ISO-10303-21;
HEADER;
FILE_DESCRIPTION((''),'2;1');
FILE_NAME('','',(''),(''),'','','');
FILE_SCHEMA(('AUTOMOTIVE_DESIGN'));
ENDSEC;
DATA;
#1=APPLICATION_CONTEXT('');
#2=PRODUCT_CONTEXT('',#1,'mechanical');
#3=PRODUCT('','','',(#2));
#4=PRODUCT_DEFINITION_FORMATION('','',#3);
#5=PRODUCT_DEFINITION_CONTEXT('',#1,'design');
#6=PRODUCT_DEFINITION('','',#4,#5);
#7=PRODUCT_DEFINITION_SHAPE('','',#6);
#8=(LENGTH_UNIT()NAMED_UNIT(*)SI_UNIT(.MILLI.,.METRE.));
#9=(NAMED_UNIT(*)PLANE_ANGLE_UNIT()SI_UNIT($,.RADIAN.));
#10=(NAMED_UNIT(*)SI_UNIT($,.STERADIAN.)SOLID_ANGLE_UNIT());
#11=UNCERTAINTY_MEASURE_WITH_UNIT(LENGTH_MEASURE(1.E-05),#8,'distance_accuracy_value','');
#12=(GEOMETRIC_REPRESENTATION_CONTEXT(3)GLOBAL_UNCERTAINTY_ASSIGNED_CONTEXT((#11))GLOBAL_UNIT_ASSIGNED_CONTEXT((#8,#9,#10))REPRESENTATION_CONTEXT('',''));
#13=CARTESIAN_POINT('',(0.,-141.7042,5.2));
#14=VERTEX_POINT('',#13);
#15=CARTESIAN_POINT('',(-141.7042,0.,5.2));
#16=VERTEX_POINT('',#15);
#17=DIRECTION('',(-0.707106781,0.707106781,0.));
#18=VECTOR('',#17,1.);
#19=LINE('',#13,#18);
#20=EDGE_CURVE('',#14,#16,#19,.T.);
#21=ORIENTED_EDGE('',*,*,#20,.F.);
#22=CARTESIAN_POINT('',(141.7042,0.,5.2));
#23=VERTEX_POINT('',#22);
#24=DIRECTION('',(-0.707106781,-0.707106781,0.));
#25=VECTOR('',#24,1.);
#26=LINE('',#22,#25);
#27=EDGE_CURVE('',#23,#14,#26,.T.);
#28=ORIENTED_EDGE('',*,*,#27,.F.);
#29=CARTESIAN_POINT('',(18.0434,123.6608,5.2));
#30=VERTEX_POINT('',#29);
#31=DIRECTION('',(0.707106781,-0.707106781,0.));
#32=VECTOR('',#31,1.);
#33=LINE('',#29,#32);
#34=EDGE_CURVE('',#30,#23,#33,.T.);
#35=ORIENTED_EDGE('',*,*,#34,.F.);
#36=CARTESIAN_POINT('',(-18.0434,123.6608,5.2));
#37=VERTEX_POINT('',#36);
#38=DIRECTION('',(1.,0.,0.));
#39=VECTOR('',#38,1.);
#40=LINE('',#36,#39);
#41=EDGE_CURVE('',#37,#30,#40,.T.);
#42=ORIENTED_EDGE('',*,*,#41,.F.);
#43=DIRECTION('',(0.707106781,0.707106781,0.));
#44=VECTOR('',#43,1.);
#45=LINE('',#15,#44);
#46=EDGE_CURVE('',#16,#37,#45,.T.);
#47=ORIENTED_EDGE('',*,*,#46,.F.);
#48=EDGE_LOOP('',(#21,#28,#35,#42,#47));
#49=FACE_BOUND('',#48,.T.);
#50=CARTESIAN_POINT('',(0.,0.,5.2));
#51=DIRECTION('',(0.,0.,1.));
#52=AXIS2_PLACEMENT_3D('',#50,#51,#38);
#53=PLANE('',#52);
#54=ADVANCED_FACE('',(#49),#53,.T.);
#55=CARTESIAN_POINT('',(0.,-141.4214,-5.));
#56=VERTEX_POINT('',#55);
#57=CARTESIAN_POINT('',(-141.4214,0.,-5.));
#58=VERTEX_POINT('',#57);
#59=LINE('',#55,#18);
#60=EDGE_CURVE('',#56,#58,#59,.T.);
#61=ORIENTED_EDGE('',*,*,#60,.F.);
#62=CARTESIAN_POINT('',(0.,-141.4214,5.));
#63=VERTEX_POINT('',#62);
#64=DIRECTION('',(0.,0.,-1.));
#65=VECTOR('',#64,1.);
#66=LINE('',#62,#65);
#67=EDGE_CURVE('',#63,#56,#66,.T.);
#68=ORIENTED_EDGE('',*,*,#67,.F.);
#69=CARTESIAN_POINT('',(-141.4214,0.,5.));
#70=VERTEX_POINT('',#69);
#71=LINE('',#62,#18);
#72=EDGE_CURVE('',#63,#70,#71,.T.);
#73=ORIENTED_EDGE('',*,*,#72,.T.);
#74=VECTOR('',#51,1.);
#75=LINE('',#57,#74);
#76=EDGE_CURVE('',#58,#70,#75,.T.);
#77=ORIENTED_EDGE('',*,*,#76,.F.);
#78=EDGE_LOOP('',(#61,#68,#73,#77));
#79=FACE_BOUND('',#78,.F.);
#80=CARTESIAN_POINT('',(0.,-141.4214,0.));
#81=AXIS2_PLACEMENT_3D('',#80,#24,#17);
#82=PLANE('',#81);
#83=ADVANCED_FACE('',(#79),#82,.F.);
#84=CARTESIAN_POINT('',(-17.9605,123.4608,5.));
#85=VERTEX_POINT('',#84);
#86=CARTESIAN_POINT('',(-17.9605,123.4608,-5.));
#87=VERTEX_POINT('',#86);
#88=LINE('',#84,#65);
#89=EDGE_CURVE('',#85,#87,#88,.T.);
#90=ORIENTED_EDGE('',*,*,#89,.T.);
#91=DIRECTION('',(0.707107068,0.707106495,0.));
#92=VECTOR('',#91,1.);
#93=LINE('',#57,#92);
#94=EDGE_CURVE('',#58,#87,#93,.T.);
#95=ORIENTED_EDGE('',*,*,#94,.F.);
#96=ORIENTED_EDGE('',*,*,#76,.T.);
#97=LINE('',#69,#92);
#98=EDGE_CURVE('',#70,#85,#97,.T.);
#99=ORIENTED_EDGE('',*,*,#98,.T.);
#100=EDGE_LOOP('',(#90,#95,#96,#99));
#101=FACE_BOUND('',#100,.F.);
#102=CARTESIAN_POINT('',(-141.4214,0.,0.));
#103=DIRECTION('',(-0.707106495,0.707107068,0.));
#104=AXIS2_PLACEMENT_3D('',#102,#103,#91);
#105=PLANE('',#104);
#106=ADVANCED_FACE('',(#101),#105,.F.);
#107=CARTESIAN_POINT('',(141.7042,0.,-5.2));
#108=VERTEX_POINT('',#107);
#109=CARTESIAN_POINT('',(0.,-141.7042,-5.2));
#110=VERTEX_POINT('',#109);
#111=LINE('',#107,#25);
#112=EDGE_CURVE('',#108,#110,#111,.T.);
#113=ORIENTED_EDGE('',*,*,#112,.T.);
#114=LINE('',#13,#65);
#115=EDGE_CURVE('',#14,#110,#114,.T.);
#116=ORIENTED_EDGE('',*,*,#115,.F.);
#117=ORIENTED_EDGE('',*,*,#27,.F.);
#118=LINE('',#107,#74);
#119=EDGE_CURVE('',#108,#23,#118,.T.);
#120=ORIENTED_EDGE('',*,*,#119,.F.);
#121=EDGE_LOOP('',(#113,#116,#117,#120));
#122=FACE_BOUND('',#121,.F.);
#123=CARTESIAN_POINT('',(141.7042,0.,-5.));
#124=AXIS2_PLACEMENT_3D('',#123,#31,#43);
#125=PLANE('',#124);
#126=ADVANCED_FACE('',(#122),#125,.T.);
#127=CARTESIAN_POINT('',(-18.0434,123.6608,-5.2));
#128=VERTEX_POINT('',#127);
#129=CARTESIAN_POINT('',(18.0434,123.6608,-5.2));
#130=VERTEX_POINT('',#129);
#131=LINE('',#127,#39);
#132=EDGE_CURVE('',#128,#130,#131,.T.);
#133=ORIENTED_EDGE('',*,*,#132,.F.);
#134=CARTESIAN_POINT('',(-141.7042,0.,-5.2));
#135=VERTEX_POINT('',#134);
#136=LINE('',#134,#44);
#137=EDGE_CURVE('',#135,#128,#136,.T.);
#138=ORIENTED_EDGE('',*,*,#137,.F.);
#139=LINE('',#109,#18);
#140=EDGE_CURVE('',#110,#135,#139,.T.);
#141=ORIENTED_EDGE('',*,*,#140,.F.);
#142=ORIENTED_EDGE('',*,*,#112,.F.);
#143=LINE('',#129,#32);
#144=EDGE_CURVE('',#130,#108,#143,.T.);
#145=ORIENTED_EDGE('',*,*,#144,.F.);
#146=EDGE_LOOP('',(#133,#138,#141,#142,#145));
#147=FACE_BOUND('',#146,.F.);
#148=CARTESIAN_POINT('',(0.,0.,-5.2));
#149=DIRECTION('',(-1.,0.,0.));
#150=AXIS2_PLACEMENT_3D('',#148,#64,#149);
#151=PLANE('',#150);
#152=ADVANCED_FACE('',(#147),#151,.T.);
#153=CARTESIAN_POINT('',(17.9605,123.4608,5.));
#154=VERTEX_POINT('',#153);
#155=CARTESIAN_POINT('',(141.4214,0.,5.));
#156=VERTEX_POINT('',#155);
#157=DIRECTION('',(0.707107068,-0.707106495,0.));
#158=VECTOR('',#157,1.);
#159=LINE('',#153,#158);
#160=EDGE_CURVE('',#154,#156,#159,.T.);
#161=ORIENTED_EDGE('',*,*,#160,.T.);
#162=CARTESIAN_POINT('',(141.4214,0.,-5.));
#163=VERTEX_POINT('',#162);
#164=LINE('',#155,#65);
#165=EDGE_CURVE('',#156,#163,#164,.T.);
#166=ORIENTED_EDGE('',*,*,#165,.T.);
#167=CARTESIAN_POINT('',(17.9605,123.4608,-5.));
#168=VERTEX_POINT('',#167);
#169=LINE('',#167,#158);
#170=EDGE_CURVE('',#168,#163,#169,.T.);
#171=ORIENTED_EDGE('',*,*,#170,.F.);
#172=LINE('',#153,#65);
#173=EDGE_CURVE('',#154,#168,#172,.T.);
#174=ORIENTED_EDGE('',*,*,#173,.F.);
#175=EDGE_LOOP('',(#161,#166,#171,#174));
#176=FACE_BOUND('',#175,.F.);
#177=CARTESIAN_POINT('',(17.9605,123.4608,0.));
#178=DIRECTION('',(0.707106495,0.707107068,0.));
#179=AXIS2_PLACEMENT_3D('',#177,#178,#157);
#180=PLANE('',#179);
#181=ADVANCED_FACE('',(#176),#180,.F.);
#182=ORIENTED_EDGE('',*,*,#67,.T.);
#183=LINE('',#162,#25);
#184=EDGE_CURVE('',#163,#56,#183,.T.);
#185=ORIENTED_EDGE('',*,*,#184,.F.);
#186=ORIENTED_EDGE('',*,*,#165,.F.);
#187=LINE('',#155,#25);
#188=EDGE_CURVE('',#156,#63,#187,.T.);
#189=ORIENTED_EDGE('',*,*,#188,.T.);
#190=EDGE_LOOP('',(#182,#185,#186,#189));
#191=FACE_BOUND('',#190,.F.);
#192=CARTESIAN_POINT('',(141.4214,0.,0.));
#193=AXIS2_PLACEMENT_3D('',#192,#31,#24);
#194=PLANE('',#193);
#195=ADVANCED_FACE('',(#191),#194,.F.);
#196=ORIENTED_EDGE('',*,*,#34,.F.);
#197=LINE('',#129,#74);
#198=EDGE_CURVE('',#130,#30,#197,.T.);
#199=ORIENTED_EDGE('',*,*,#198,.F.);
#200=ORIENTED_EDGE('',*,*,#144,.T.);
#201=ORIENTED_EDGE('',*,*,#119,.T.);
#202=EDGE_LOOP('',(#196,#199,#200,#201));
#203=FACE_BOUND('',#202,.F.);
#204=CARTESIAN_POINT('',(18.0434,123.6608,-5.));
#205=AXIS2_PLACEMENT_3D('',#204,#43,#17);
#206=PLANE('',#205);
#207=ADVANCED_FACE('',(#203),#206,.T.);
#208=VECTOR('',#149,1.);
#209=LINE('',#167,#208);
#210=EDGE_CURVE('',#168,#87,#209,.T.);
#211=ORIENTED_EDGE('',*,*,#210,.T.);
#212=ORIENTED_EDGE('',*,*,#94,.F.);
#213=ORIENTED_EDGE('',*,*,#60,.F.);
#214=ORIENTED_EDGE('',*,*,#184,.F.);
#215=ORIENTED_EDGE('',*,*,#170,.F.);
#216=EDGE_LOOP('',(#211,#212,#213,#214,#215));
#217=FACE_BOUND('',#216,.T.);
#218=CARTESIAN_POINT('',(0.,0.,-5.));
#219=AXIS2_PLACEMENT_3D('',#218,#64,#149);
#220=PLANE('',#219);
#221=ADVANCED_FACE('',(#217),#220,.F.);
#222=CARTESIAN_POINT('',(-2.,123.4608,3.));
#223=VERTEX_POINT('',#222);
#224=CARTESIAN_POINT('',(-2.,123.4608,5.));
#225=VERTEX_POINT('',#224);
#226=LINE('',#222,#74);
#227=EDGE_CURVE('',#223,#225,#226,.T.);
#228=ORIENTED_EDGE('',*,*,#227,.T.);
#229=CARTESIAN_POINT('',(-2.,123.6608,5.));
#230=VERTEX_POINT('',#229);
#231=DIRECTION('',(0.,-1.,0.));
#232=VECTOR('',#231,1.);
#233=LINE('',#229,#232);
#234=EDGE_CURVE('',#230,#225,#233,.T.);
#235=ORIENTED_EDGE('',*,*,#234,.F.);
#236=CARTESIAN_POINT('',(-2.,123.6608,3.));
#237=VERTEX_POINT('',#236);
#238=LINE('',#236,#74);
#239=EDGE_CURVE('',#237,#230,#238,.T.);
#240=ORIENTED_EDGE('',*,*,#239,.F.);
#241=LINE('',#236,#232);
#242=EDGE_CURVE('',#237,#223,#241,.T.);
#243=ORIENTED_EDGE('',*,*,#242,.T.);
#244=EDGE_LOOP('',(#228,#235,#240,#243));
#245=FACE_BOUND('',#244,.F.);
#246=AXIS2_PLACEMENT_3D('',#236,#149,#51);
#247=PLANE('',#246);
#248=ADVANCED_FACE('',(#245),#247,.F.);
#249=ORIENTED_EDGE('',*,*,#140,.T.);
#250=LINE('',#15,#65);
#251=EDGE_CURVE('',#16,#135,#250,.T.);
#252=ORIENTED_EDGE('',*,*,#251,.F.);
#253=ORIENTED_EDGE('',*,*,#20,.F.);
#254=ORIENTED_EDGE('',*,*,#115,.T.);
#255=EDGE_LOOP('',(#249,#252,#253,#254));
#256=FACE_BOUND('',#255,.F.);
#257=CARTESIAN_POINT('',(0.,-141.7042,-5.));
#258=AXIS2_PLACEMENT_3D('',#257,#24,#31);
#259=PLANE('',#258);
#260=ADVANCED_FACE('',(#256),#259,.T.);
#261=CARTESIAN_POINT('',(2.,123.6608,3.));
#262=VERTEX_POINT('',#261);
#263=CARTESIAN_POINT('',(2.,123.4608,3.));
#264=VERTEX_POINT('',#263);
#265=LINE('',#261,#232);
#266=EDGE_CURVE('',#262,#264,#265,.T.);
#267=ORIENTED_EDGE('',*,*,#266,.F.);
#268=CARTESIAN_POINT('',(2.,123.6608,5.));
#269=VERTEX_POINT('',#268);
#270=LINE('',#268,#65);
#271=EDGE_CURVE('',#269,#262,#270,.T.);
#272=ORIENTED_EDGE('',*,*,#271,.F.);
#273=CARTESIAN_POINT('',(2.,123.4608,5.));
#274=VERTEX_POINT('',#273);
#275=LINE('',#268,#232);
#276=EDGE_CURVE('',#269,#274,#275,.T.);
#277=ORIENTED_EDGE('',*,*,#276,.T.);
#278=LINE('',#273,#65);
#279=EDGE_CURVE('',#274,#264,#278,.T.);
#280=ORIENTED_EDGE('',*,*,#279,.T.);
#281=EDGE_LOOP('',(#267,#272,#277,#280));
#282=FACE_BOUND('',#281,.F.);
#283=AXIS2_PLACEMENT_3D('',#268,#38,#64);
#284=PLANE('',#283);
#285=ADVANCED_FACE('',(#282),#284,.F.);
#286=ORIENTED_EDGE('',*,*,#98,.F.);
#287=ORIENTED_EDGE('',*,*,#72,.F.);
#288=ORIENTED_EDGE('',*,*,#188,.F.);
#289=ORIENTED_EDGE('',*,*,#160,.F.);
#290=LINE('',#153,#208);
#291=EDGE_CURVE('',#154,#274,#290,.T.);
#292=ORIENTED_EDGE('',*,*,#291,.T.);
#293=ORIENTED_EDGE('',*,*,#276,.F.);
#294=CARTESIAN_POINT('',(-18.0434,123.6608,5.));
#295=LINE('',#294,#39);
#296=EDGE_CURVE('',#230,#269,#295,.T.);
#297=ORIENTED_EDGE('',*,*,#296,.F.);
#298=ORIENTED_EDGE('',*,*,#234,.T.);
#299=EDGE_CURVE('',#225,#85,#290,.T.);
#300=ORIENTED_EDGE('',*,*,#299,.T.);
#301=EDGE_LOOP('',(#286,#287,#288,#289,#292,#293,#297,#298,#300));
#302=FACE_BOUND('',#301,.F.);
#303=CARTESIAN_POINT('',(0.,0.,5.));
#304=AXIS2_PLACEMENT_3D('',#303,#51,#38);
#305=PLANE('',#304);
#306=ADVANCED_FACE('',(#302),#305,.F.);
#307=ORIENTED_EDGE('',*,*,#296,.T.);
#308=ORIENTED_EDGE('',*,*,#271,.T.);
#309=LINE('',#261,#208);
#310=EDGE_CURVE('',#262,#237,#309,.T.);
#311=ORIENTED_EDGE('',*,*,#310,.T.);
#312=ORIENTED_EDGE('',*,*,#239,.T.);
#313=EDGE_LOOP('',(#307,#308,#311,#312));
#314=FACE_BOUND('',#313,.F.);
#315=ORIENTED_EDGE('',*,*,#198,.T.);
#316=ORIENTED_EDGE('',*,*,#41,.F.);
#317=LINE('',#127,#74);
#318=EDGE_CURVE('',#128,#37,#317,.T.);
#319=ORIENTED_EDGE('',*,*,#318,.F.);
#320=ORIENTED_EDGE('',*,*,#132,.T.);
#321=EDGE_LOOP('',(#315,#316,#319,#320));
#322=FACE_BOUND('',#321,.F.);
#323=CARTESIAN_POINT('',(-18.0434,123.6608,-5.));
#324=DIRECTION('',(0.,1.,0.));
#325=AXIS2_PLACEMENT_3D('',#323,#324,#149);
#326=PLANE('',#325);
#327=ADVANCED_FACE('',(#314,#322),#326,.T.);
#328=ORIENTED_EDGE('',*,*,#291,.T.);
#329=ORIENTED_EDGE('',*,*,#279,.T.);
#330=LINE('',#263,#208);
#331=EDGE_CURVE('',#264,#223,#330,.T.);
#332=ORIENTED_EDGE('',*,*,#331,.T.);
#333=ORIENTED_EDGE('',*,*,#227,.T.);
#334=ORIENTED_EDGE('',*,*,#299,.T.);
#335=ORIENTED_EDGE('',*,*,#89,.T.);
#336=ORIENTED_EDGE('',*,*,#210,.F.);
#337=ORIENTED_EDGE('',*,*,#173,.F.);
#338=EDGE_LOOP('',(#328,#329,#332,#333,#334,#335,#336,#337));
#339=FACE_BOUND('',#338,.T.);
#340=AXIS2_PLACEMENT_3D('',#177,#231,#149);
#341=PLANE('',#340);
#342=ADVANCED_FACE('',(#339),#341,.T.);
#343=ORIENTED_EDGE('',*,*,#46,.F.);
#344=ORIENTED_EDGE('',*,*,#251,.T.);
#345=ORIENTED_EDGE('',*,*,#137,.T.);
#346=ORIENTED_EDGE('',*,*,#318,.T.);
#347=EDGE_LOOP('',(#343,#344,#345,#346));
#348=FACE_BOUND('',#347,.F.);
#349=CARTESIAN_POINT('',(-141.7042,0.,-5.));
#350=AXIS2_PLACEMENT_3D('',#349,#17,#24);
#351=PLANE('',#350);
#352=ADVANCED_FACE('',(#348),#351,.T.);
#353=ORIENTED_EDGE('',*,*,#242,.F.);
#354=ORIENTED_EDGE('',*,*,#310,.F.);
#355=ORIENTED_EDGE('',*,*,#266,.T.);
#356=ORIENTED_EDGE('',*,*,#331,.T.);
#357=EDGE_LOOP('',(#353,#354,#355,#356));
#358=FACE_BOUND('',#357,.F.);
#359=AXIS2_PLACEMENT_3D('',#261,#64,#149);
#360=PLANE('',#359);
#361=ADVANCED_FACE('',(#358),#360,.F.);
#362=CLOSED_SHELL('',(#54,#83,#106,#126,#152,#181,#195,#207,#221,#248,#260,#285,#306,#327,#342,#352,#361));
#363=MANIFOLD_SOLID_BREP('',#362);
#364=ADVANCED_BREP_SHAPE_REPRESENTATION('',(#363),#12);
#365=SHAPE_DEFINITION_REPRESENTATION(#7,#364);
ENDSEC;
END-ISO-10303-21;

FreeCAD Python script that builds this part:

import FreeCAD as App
import Part
import Sketcher

V = App.Vector

doc = App.newDocument("Part")
body = doc.addObject("PartDesign::Body", "Body")

# Sketch on XY plane
sketch1 = body.newObject("Sketcher::SketchObject", "Sketch")
sketch1.AttachmentSupport = (doc.getObject("XY_Plane"), [""])
sketch1.MapMode = "FlatFace"
sketch1.addGeometry(Part.LineSegment(V(18, 124, 0), V(-18, 124, 0)), False)
sketch1.addGeometry(Part.LineSegment(V(-18, 124, 0), V(-142, 0, 0)), False)
sketch1.addGeometry(Part.LineSegment(V(-142, 0, 0), V(0, -142, 0)), False)
sketch1.addGeometry(Part.LineSegment(V(0, -142, 0), V(142, 0, 0)), False)
sketch1.addGeometry(Part.LineSegment(V(142, 0, 0), V(18, 124, 0)), False)
sketch1.addGeometry(Part.LineSegment(V(0, -141, 0), V(-141, 0, 0)), False)
sketch1.addGeometry(Part.LineSegment(V(-141, 0, 0), V(-18, 123, 0)), False)
sketch1.addGeometry(Part.LineSegment(V(-18, 123, 0), V(18, 123, 0)), False)
sketch1.addGeometry(Part.LineSegment(V(18, 123, 0), V(141, 0, 0)), False)
sketch1.addGeometry(Part.LineSegment(V(141, 0, 0), V(0, -141, 0)), False)
sketch1.addConstraint(Sketcher.Constraint("Coincident", 0, 2, 1, 1))
sketch1.addConstraint(Sketcher.Constraint("Coincident", 1, 2, 2, 1))
sketch1.addConstraint(Sketcher.Constraint("Coincident", 2, 2, 3, 1))
sketch1.addConstraint(Sketcher.Constraint("Coincident", 3, 2, 4, 1))
sketch1.addConstraint(Sketcher.Constraint("Coincident", 4, 2, 0, 1))
sketch1.addConstraint(Sketcher.Constraint("Coincident", 5, 2, 6, 1))
sketch1.addConstraint(Sketcher.Constraint("Coincident", 6, 2, 7, 1))
sketch1.addConstraint(Sketcher.Constraint("Coincident", 7, 2, 8, 1))
sketch1.addConstraint(Sketcher.Constraint("Coincident", 8, 2, 9, 1))
sketch1.addConstraint(Sketcher.Constraint("Coincident", 9, 2, 5, 1))
sketch1.addConstraint(Sketcher.Constraint("Horizontal", 0))
sketch1.addConstraint(Sketcher.Constraint("Horizontal", 7))
sketch1.addConstraint(Sketcher.Constraint("Symmetric", 1, 2, 3, 2, -1, 1))
sketch1.addConstraint(Sketcher.Constraint("Symmetric", 5, 2, 8, 2, -1, 1))
sketch1.addConstraint(Sketcher.Constraint("PointOnObject", 1, 2, -1))
sketch1.addConstraint(Sketcher.Constraint("PointOnObject", 2, 2, -2))
sketch1.addConstraint(Sketcher.Constraint("PointOnObject", 5, 2, -1))
sketch1.addConstraint(Sketcher.Constraint("PointOnObject", 9, 2, -2))
sketch1.addConstraint(Sketcher.Constraint("Perpendicular", 1, 2))
sketch1.addConstraint(Sketcher.Constraint("Perpendicular", 2, 3))
sketch1.addConstraint(Sketcher.Constraint("Perpendicular", 3, 4))
sketch1.addConstraint(Sketcher.Constraint("Parallel", 4, 5))
sketch1.addConstraint(Sketcher.Constraint("Perpendicular", 5, 6))
sketch1.addConstraint(Sketcher.Constraint("Perpendicular", 6, 8))
sketch1.addConstraint(Sketcher.Constraint("Distance", 5, 200.0))
sketch1.addConstraint(Sketcher.Constraint("DistanceY", 6, 2, 0, 2, 0.2))
sketch1.addConstraint(Sketcher.Constraint("Distance", 2, 200.4))
sketch1.addConstraint(Sketcher.Constraint("Distance", 6, 174.6))
pad1 = body.newObject("PartDesign::Pad", "Pad")
pad1.Profile = sketch1
pad1.Length = 10
pad1.Midplane = True

# Sketch on XZ plane
sketch2 = body.newObject("Sketcher::SketchObject", "Sketch001")
sketch2.AttachmentSupport = (doc.getObject("XZ_Plane"), [""])
sketch2.MapMode = "FlatFace"
sketch2.AttachmentOffset = App.Placement(V(0, 0, -123.6608), App.Rotation())
sketch2.addGeometry(Part.LineSegment(V(-2, 3, 0), V(-2, 5, 0)), False)
sketch2.addGeometry(Part.LineSegment(V(-2, 5, 0), V(2, 5, 0)), False)
sketch2.addGeometry(Part.LineSegment(V(2, 5, 0), V(2, 3, 0)), False)
sketch2.addGeometry(Part.LineSegment(V(2, 3, 0), V(-2, 3, 0)), False)
sketch2.addConstraint(Sketcher.Constraint("Coincident", 0, 2, 1, 1))
sketch2.addConstraint(Sketcher.Constraint("Coincident", 1, 2, 2, 1))
sketch2.addConstraint(Sketcher.Constraint("Coincident", 2, 2, 3, 1))
sketch2.addConstraint(Sketcher.Constraint("Coincident", 3, 2, 0, 1))
sketch2.addConstraint(Sketcher.Constraint("Vertical", 0))
sketch2.addConstraint(Sketcher.Constraint("Horizontal", 1))
sketch2.addConstraint(Sketcher.Constraint("Vertical", 2))
sketch2.addConstraint(Sketcher.Constraint("Horizontal", 3))
sketch2.addConstraint(Sketcher.Constraint("DistanceX", 1, 1, 1, 2, 4.0))
sketch2.addConstraint(Sketcher.Constraint("DistanceY", 0, 1, 0, 2, 2.0))
sketch2.addConstraint(Sketcher.Constraint("DistanceX", 0, 2, -1, 1, 2.0))
sketch2.addConstraint(Sketcher.Constraint("DistanceY", -1, 1, 0, 2, 5.0))
pocket1 = body.newObject("PartDesign::Pocket", "Pocket")
pocket1.Profile = sketch2
pocket1.Length = 0.2
pocket1.Reversed = True

# Sketch on XY plane
sketch3 = body.newObject("Sketcher::SketchObject", "Sketch002")
sketch3.AttachmentSupport = (doc.getObject("XY_Plane"), [""])
sketch3.MapMode = "FlatFace"
sketch3.AttachmentOffset = App.Placement(V(0, 0, 5), App.Rotation())
sketch3.addGeometry(Part.LineSegment(V(0, -142, 0), V(142, 0, 0)), False)
sketch3.addGeometry(Part.LineSegment(V(142, 0, 0), V(18, 124, 0)), False)
sketch3.addGeometry(Part.LineSegment(V(18, 124, 0), V(-18, 124, 0)), False)
sketch3.addGeometry(Part.LineSegment(V(-18, 124, 0), V(-142, 0, 0)), False)
sketch3.addGeometry(Part.LineSegment(V(-142, 0, 0), V(0, -142, 0)), False)
sketch3.addConstraint(Sketcher.Constraint("Coincident", 0, 2, 1, 1))
sketch3.addConstraint(Sketcher.Constraint("Coincident", 1, 2, 2, 1))
sketch3.addConstraint(Sketcher.Constraint("Coincident", 2, 2, 3, 1))
sketch3.addConstraint(Sketcher.Constraint("Coincident", 3, 2, 4, 1))
sketch3.addConstraint(Sketcher.Constraint("Coincident", 4, 2, 0, 1))
sketch3.addConstraint(Sketcher.Constraint("Horizontal", 2))
sketch3.addConstraint(Sketcher.Constraint("Symmetric", 0, 2, 3, 2, -1, 1))
sketch3.addConstraint(Sketcher.Constraint("PointOnObject", 0, 2, -1))
sketch3.addConstraint(Sketcher.Constraint("PointOnObject", 4, 2, -2))
sketch3.addConstraint(Sketcher.Constraint("Perpendicular", 0, 1))
sketch3.addConstraint(Sketcher.Constraint("Perpendicular", 1, 3))
sketch3.addConstraint(Sketcher.Constraint("Perpendicular", 3, 4))
sketch3.addConstraint(Sketcher.Constraint("Distance", 0, 200.4))
sketch3.addConstraint(Sketcher.Constraint("DistanceX", 2, 2, 2, 1, 36.0868))
pad2 = body.newObject("PartDesign::Pad", "Pad001")
pad2.Profile = sketch3
pad2.Length = 0.2
doc.recompute()

mirrored = body.newObject("PartDesign::Mirrored", "Mirrored")
mirrored.Originals = [pad2]
mirrored.MirrorPlane = (doc.getObject("XY_Plane"), [""])
body.Tip = mirrored

doc.recompute()
